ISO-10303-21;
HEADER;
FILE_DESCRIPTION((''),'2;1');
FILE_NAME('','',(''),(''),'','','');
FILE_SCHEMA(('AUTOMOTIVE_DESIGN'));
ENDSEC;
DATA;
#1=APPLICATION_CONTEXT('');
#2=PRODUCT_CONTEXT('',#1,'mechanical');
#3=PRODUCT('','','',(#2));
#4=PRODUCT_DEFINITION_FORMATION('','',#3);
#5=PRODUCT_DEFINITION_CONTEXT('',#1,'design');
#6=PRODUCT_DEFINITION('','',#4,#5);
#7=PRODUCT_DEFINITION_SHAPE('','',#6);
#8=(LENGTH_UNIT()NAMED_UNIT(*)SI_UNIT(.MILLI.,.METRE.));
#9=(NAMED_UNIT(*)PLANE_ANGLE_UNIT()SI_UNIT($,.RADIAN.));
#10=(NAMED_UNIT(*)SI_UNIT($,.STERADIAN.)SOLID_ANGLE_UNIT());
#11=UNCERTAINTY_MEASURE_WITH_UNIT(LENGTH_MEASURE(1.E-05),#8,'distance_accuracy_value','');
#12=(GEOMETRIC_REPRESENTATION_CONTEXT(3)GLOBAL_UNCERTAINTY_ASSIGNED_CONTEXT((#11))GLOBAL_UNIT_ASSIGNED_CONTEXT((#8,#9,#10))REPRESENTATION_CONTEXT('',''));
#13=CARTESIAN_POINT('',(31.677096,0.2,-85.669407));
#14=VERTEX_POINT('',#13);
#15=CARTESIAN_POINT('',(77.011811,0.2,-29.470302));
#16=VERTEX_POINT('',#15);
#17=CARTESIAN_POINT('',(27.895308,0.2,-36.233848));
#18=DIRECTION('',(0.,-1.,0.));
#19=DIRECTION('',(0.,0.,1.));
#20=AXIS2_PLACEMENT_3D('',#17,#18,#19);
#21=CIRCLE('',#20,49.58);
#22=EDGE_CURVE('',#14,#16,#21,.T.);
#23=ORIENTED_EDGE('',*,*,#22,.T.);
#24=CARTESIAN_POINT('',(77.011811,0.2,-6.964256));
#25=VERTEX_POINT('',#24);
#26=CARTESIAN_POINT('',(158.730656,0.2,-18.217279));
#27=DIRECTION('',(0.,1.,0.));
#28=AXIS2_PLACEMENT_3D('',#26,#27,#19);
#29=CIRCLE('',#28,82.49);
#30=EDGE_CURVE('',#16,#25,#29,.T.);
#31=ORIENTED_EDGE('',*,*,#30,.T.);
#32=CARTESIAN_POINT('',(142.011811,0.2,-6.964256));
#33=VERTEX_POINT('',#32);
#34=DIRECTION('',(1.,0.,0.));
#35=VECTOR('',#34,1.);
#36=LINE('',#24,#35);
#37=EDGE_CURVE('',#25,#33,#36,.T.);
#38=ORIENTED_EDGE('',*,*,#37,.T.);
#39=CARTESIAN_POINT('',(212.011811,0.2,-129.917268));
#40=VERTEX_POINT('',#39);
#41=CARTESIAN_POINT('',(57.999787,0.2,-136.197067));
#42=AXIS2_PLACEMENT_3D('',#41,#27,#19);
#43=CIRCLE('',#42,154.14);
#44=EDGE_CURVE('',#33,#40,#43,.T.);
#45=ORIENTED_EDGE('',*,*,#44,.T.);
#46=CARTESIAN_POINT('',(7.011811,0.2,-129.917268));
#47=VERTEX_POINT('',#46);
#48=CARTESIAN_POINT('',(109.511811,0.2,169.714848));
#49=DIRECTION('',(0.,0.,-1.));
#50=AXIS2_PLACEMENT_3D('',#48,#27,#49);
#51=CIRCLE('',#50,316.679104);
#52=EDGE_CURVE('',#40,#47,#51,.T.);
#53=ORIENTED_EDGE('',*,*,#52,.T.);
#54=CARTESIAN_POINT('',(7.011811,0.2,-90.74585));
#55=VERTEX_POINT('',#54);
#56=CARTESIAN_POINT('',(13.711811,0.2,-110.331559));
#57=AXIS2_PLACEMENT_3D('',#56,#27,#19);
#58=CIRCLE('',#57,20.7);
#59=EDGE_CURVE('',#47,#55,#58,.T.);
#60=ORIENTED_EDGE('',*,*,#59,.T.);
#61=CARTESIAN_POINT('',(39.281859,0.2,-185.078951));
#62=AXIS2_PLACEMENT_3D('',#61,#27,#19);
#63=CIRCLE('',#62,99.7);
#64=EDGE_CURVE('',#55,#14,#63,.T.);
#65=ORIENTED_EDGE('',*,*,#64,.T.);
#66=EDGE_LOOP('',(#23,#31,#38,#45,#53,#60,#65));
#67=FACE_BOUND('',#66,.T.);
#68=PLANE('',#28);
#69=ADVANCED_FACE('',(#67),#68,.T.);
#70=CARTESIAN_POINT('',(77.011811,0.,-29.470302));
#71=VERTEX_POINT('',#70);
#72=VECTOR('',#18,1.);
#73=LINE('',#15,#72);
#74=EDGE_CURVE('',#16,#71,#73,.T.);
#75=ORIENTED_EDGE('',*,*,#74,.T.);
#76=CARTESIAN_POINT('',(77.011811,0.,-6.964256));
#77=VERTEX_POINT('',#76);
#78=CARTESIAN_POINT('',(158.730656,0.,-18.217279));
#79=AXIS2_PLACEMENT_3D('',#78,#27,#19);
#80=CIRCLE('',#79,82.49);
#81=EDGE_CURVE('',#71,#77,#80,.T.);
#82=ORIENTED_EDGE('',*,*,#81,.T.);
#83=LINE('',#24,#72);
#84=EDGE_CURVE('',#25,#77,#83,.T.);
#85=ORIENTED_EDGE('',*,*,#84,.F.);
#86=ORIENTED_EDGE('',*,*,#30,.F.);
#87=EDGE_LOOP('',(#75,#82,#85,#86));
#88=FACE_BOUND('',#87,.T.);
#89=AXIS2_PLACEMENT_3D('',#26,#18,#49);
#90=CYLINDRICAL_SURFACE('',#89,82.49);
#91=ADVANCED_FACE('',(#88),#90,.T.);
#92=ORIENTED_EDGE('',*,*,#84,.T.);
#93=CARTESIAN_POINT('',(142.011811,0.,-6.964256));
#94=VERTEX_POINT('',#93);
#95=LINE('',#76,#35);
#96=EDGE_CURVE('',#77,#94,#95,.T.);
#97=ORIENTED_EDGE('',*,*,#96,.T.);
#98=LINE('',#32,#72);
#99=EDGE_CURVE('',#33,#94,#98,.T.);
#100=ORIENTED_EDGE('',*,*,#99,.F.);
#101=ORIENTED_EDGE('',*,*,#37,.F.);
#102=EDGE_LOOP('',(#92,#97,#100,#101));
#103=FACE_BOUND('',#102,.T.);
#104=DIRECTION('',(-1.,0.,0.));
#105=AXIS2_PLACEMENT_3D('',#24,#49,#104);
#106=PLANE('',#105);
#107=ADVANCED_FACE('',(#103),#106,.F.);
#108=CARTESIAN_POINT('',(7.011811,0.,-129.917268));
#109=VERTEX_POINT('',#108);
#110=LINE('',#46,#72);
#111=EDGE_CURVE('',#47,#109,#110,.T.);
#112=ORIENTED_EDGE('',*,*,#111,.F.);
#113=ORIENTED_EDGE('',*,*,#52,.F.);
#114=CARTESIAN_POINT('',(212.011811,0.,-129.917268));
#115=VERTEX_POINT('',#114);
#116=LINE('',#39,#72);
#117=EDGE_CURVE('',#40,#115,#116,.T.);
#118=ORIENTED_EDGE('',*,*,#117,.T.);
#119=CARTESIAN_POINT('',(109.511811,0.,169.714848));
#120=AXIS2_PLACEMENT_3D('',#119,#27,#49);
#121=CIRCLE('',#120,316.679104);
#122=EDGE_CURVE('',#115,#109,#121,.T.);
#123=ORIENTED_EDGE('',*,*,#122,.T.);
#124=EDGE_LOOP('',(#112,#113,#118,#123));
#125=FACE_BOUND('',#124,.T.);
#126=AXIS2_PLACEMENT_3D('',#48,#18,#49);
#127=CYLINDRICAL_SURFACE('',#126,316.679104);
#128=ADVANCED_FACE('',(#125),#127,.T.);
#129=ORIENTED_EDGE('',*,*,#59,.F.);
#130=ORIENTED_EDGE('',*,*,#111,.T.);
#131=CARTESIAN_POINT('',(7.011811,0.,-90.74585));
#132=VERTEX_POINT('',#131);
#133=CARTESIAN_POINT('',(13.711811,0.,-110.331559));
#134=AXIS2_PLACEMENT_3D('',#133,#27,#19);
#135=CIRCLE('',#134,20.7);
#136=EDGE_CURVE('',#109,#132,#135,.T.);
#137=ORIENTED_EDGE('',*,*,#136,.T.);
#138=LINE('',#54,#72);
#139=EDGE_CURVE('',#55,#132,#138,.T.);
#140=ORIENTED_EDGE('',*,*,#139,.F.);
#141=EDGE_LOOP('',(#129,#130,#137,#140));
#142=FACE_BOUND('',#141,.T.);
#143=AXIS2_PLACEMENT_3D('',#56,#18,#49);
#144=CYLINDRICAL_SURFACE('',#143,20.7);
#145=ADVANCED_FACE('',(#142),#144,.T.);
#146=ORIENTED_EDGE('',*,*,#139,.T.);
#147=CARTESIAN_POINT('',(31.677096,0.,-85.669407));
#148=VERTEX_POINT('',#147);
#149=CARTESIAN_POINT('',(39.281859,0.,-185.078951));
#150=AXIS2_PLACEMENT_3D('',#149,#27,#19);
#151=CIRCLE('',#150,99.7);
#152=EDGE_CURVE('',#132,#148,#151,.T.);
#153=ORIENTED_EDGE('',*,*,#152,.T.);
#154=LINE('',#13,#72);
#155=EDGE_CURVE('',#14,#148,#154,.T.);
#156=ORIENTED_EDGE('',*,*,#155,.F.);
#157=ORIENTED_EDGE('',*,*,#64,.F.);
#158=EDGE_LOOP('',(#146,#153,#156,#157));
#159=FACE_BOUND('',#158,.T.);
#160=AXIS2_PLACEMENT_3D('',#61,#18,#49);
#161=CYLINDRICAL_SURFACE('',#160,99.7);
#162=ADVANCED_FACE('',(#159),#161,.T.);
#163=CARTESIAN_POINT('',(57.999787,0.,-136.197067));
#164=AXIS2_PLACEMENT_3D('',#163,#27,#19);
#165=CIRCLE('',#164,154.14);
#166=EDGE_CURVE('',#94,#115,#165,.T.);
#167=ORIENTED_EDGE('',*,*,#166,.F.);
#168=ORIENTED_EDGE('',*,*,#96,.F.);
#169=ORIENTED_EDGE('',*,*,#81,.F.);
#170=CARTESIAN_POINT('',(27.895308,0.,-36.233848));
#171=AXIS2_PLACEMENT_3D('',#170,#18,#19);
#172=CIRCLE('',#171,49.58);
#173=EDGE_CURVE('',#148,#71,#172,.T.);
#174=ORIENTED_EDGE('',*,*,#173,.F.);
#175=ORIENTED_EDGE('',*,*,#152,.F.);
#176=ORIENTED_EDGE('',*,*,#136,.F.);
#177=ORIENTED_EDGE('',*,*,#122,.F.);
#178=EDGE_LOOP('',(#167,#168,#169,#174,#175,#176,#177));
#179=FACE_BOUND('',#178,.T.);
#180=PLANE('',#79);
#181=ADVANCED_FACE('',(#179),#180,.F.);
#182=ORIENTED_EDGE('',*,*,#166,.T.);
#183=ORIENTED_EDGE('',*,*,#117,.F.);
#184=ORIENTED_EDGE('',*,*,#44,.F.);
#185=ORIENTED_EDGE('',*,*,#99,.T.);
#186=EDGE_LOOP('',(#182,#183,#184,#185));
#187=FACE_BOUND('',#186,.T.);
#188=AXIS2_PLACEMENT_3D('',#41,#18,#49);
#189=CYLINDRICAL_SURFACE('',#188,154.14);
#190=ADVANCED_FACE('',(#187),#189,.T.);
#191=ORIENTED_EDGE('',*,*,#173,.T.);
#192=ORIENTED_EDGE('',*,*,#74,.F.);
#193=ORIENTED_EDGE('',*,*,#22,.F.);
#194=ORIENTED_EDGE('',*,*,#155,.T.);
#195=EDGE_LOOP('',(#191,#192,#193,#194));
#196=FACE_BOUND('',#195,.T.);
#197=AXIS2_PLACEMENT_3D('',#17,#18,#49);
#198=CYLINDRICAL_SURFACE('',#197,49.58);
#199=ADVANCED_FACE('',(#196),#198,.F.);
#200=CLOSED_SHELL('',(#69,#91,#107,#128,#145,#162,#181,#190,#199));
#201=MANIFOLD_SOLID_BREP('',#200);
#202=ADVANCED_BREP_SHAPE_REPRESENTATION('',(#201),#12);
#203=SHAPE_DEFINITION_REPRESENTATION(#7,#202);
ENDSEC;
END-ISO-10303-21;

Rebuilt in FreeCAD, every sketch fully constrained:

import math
import FreeCAD as App
import Part
import Sketcher
Q = App.Units.Quantity

doc = App.newDocument("Part")
body = doc.addObject("PartDesign::Body", "Body")

# Sketch on XZ plane
sketch1 = body.newObject("Sketcher::SketchObject", "Sketch")
sketch1.AttachmentSupport = (doc.getObject("XZ_Plane"), [""])
sketch1.MapMode = "FlatFace"
sketch1.addGeometry([
    Part.LineSegment(App.Vector(77, -7, 0), App.Vector(142, -7, 0)),  # 0
    Part.ArcOfCircle(Part.Circle(App.Vector(58, -136, 0), App.Vector(0, 0, 1), 154), math.radians(2), math.radians(57)),  # 1
    Part.ArcOfCircle(Part.Circle(App.Vector(110, 170, 0), App.Vector(0, 0, 1), 317), math.radians(-109), math.radians(-71)),  # 2
    Part.ArcOfCircle(Part.Circle(App.Vector(14, -110, 0), App.Vector(0, 0, 1), 21), math.radians(109), math.radians(251)),  # 3
    Part.ArcOfCircle(Part.Circle(App.Vector(39, -185, 0), App.Vector(0, 0, 1), 100), math.radians(94.37), math.radians(108.89)),  # 4
    Part.ArcOfCircle(Part.Circle(App.Vector(28, -36, 0), App.Vector(0, 0, 1), 50), math.radians(-86), math.radians(8)),  # 5
    Part.ArcOfCircle(Part.Circle(App.Vector(159, -18, 0), App.Vector(0, 0, 1), 82), math.radians(172.16), math.radians(187.84)),  # 6
], False)
sketch1.addConstraint([
    Sketcher.Constraint("Coincident", 0, 2, 1, 2),
    Sketcher.Constraint("Coincident", 1, 1, 2, 2),
    Sketcher.Constraint("Tangent", 2, 1, 3, 2),
    Sketcher.Constraint("Tangent", 3, 1, 4, 2),
    Sketcher.Constraint("Tangent", 4, 1, 5, 1),
    Sketcher.Constraint("Tangent", 5, 2, 6, 2),
    Sketcher.Constraint("Coincident", 6, 1, 0, 1),
    Sketcher.Constraint("Horizontal", 0),
    Sketcher.Constraint("Horizontal", 1, 1, 2, 1),
    Sketcher.Constraint("Vertical", 5, 2, 6, 1),
    Sketcher.Constraint("Radius", 3, Q("20.7 mm")),
    Sketcher.Constraint("Radius", 4, Q("99.7 mm")),
    Sketcher.Constraint("DistanceX", 0, 1, 0, 2, Q("65 mm")),
    Sketcher.Constraint("Radius", 1, Q("154.14 mm")),
    Sketcher.Constraint("Radius", 5, Q("49.58 mm")),
    Sketcher.Constraint("Radius", 6, Q("82.49 mm")),
    Sketcher.Constraint("DistanceX", 0, 2, 1, 1, Q("70 mm")),
    Sketcher.Constraint("DistanceX", 2, 1, 0, 2, Q("135 mm")),
    Sketcher.Constraint("DistanceX", 3, 1, 5, 2, Q("70 mm")),
    Sketcher.Constraint("DistanceX", 3, 3, 2, 3, Q("95.8 mm")),
    Sketcher.Constraint("DistanceY", 1, 3, 1, 1, Q("6.279799 mm")),
    Sketcher.Constraint("DistanceX", -1, 1, 2, 3, Q("109.511811 mm")),
    Sketcher.Constraint("DistanceY", -1, 1, 2, 3, Q("169.714848 mm")),
])
pad1 = body.newObject("PartDesign::Pad", "Pad")
pad1.Profile = sketch1
pad1.Length = 0.2
pad1.Reversed = True

doc.recompute()
